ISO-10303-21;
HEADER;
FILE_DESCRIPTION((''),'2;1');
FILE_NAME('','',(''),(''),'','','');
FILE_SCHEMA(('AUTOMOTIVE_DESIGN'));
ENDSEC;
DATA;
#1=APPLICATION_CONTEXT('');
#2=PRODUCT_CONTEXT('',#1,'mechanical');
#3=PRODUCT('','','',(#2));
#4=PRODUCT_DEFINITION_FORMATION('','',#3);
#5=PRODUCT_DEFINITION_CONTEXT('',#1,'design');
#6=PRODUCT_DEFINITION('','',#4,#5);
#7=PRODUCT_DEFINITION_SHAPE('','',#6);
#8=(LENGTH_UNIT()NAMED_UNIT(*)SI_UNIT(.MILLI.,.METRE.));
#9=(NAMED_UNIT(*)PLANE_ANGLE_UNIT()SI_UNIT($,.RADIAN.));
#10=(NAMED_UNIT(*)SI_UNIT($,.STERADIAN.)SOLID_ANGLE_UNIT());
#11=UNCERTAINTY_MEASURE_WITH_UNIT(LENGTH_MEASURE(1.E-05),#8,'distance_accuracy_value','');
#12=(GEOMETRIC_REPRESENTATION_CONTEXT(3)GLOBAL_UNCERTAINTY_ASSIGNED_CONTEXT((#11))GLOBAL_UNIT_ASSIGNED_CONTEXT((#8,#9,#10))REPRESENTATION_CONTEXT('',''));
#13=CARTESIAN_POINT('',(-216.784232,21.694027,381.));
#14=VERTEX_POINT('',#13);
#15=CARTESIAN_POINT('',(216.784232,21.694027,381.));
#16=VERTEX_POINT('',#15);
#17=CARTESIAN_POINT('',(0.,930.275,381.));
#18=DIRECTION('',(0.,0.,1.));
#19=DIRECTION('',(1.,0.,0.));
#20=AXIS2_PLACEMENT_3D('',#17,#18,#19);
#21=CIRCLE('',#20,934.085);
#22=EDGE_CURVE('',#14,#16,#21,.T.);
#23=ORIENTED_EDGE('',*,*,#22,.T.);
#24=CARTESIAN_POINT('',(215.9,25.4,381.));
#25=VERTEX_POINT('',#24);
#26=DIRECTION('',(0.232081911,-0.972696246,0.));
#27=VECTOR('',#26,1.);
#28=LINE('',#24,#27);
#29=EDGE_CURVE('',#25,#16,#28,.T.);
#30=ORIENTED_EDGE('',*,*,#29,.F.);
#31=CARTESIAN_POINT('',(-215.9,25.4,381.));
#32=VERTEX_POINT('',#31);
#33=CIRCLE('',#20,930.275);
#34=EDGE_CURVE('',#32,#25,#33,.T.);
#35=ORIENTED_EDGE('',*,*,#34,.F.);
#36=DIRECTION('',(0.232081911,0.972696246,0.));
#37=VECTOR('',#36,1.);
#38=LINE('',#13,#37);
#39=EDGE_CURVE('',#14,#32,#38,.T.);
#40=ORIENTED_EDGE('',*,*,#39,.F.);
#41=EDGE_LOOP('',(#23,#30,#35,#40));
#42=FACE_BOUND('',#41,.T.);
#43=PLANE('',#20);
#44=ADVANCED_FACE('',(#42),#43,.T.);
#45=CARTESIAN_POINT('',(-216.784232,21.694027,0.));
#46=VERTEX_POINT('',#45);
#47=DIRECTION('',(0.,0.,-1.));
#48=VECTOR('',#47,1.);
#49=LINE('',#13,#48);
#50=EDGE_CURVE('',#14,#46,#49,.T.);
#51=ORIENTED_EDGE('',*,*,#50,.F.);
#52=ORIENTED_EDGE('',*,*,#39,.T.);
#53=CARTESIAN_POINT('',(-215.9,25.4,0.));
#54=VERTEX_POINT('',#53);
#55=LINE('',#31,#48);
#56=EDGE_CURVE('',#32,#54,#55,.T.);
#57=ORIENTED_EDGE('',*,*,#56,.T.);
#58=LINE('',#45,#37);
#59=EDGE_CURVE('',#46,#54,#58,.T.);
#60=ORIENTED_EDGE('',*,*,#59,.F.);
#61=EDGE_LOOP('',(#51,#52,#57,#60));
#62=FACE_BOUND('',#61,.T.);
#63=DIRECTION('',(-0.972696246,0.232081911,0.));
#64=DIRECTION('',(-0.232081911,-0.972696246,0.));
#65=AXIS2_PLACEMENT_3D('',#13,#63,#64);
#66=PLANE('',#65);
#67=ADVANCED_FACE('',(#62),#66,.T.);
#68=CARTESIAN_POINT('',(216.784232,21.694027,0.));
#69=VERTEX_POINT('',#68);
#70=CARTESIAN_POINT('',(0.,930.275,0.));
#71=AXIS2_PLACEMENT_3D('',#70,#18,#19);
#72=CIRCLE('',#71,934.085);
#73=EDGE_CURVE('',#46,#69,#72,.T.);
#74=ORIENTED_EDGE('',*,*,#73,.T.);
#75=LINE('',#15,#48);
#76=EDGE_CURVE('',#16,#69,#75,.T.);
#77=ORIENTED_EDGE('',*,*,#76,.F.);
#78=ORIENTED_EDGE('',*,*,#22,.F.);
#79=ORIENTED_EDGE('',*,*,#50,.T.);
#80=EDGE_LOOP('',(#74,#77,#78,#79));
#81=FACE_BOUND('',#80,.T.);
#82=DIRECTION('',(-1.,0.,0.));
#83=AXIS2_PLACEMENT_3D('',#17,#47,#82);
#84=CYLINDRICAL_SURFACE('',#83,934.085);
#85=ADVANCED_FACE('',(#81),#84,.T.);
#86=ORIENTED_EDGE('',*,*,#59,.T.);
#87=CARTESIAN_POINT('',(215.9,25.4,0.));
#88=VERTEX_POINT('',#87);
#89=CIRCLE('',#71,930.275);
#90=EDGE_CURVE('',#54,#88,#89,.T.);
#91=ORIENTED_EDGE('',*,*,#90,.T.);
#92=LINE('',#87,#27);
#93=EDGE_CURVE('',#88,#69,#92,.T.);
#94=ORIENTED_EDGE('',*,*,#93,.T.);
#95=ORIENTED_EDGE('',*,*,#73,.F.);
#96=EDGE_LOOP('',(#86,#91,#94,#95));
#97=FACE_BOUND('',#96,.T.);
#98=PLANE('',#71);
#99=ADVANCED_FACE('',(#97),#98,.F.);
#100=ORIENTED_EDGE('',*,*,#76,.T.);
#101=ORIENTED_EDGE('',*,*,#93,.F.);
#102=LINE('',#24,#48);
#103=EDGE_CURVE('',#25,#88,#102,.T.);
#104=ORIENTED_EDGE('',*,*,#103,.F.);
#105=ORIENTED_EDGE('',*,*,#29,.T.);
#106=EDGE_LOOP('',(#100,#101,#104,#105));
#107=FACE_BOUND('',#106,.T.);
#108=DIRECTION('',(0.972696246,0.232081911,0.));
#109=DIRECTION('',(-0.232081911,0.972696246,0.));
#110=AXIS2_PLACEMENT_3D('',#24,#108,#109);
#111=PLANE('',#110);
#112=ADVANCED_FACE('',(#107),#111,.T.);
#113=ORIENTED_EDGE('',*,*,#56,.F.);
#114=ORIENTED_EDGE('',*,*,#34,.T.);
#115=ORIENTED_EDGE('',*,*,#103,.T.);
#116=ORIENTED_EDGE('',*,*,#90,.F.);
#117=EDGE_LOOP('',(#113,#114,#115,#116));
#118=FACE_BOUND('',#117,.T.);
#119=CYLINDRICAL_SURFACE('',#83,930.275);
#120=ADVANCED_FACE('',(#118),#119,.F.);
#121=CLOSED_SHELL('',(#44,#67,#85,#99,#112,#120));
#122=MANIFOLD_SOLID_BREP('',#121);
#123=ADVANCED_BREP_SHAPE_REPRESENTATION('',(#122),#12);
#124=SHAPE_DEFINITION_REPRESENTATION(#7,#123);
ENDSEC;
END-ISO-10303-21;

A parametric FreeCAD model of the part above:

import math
import FreeCAD as App
import Part
import Sketcher

V = App.Vector
Q = App.Units.Quantity

doc = App.newDocument("Part")
body = doc.addObject("PartDesign::Body", "Body")

sketch1 = doc.addObject("Sketcher::SketchObject", "Sketch")
body.addObject(sketch1)
sketch1.AttachmentSupport = (doc.XY_Plane, [""])
sketch1.MapMode = "FlatFace"
sketch1.addGeometry([
    Part.ArcOfCircle(Part.Circle(V(0, 930.3, 0), V(0, 0, 1), 930.3), math.radians(-103), math.radians(-77)),
    Part.LineSegment(V(-215.9, 25.4, 0), V(-216.8, 21.7, 0)),
    Part.ArcOfCircle(Part.Circle(V(0, 930.3, 0), V(0, 0, 1), 934.1), math.radians(-103), math.radians(-77)),
    Part.LineSegment(V(216.8, 21.7, 0), V(215.9, 25.4, 0)),
], False)
sketch1.addConstraint([
    Sketcher.Constraint("Coincident", 0, 1, 1, 1),
    Sketcher.Constraint("Coincident", 1, 2, 2, 1),
    Sketcher.Constraint("Coincident", 2, 2, 3, 1),
    Sketcher.Constraint("Coincident", 3, 2, 0, 2),
    Sketcher.Constraint("Coincident", 2, 3, 0, 3),
    Sketcher.Constraint("PointOnObject", 0, 3, -2),
    Sketcher.Constraint("DistanceY", -1, 1, 0, 1, Q("1 in")),
    Sketcher.Constraint("DistanceY", -1, 1, 3, 2, Q("1 in")),
    Sketcher.Constraint("Radius", 0, Q("36.625 in")),
    Sketcher.Constraint("Radius", 2, Q("36.775 in")),
    Sketcher.Constraint("DistanceX", -1, 1, 3, 2, Q("8.5 in")),
    Sketcher.Constraint("DistanceX", 1, 2, -1, 1, Q("216.784232 mm")),
    Sketcher.Constraint("Angle", 3, Q("103.419674 deg")),
])
pad1 = doc.addObject("PartDesign::Pad", "Pad")
body.addObject(pad1)
pad1.Profile = sketch1
pad1.Length = Q("15 in")

doc.recompute()
